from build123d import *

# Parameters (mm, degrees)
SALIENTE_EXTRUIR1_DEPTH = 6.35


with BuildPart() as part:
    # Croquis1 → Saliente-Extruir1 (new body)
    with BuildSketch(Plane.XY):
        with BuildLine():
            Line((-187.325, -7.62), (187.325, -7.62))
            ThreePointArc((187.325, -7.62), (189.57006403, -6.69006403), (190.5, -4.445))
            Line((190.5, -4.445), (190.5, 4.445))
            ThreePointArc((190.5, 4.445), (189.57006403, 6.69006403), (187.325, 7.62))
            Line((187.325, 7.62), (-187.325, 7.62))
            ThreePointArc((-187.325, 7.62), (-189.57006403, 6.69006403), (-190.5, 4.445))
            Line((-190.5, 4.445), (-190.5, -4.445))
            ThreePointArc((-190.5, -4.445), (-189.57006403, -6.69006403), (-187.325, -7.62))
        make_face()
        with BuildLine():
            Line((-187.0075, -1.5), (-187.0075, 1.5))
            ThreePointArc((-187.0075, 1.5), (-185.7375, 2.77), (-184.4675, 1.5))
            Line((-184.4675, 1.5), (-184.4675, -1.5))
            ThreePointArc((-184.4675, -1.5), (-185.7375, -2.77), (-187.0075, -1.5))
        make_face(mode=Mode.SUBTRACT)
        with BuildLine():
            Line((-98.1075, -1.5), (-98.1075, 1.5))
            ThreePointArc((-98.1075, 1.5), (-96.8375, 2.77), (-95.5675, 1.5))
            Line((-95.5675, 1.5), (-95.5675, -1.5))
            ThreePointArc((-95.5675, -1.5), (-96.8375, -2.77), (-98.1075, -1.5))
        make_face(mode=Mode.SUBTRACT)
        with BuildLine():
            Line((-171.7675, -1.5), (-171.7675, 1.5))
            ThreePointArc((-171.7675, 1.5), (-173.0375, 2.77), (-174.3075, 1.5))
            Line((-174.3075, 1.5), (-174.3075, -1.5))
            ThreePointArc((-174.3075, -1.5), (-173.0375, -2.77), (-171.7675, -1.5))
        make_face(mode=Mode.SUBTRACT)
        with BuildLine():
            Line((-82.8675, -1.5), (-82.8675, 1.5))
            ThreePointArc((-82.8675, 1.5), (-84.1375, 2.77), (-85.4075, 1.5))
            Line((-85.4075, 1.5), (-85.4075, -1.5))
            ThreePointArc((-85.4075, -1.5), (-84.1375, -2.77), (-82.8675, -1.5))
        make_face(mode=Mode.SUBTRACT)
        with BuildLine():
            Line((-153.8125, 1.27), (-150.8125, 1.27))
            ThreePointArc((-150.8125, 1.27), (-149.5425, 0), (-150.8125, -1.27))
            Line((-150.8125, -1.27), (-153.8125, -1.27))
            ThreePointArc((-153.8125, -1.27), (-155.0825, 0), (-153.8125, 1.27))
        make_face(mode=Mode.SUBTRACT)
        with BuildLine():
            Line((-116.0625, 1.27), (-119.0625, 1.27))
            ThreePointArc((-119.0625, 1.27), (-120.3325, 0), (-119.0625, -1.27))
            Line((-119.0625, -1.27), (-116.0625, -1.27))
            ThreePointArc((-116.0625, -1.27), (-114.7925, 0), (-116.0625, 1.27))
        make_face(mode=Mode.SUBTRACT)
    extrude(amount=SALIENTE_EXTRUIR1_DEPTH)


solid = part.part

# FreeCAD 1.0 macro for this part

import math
import FreeCAD as App
import Part
import Sketcher
from FreeCAD import Vector
Q = App.Units.Quantity

doc = App.newDocument("Part")
body = doc.addObject("PartDesign::Body", "Body")

# Sketch on XY plane
sketch1 = body.newObject("Sketcher::SketchObject", "Sketch")
sketch1.AttachmentSupport = (doc.getObject("XY_Plane"), [""])
sketch1.MapMode = "FlatFace"
sketch1.addGeometry([
    Part.LineSegment(Vector(-187.3, -7.6, 0), Vector(187.3, -7.6, 0)),  # 0
    Part.ArcOfCircle(Part.Circle(Vector(187.3, -4.4, 0), Vector(0, 0, 1), 3.2), math.radians(-90), math.radians(0)),  # 1
    Part.LineSegment(Vector(190.5, -4.4, 0), Vector(190.5, 4.4, 0)),  # 2
    Part.ArcOfCircle(Part.Circle(Vector(187.3, 4.4, 0), Vector(0, 0, 1), 3.2), math.radians(0), math.radians(90)),  # 3
    Part.LineSegment(Vector(187.3, 7.6, 0), Vector(-187.3, 7.6, 0)),  # 4
    Part.ArcOfCircle(Part.Circle(Vector(-187.3, 4.4, 0), Vector(0, 0, 1), 3.2), math.radians(90), math.radians(180)),  # 5
    Part.LineSegment(Vector(-190.5, 4.4, 0), Vector(-190.5, -4.4, 0)),  # 6
    Part.ArcOfCircle(Part.Circle(Vector(-187.3, -4.4, 0), Vector(0, 0, 1), 3.2), math.radians(-180), math.radians(-90)),  # 7
    Part.ArcOfCircle(Part.Circle(Vector(-185.7, -1.5, 0), Vector(0, 0, 1), 1.3), math.radians(180), math.radians(360)),  # 8
    Part.LineSegment(Vector(-187, -1.5, 0), Vector(-187, 1.5, 0)),  # 9
    Part.ArcOfCircle(Part.Circle(Vector(-185.7, 1.5, 0), Vector(0, 0, 1), 1.3), math.radians(0), math.radians(180)),  # 10
    Part.LineSegment(Vector(-184.5, 1.5, 0), Vector(-184.5, -1.5, 0)),  # 11
    Part.LineSegment(Vector(-171.8, 1.5, 0), Vector(-171.8, -1.5, 0)),  # 12
    Part.ArcOfCircle(Part.Circle(Vector(-173, -1.5, 0), Vector(0, 0, 1), 1.3), math.radians(180), math.radians(360)),  # 13
    Part.LineSegment(Vector(-174.3, -1.5, 0), Vector(-174.3, 1.5, 0)),  # 14
    Part.ArcOfCircle(Part.Circle(Vector(-173, 1.5, 0), Vector(0, 0, 1), 1.3), math.radians(0), math.radians(180)),  # 15
    Part.ArcOfCircle(Part.Circle(Vector(-153.8, 0, 0), Vector(0, 0, 1), 1.3), math.radians(90), math.radians(270)),  # 16
    Part.LineSegment(Vector(-153.8, 1.3, 0), Vector(-150.8, 1.3, 0)),  # 17
    Part.ArcOfCircle(Part.Circle(Vector(-150.8, 0, 0), Vector(0, 0, 1), 1.3), math.radians(-90), math.radians(90)),  # 18
    Part.LineSegment(Vector(-150.8, -1.3, 0), Vector(-153.8, -1.3, 0)),  # 19
    Part.LineSegment(Vector(-119.1, 1.3, 0), Vector(-116.1, 1.3, 0)),  # 20
    Part.ArcOfCircle(Part.Circle(Vector(-116.1, 0, 0), Vector(0, 0, 1), 1.3), math.radians(-90), math.radians(90)),  # 21
    Part.LineSegment(Vector(-116.1, -1.3, 0), Vector(-119.1, -1.3, 0)),  # 22
    Part.ArcOfCircle(Part.Circle(Vector(-119.1, 0, 0), Vector(0, 0, 1), 1.3), math.radians(90), math.radians(270)),  # 23
    Part.ArcOfCircle(Part.Circle(Vector(-96.8, -1.5, 0), Vector(0, 0, 1), 1.3), math.radians(180), math.radians(360)),  # 24
    Part.LineSegment(Vector(-98.1, -1.5, 0), Vector(-98.1, 1.5, 0)),  # 25
    Part.ArcOfCircle(Part.Circle(Vector(-96.8, 1.5, 0), Vector(0, 0, 1), 1.3), math.radians(0), math.radians(180)),  # 26
    Part.LineSegment(Vector(-95.6, 1.5, 0), Vector(-95.6, -1.5, 0)),  # 27
    Part.LineSegment(Vector(-82.9, 1.5, 0), Vector(-82.9, -1.5, 0)),  # 28
    Part.ArcOfCircle(Part.Circle(Vector(-84.1, -1.5, 0), Vector(0, 0, 1), 1.3), math.radians(180), math.radians(360)),  # 29
    Part.LineSegment(Vector(-85.4, -1.5, 0), Vector(-85.4, 1.5, 0)),  # 30
    Part.ArcOfCircle(Part.Circle(Vector(-84.1, 1.5, 0), Vector(0, 0, 1), 1.3), math.radians(0), math.radians(180)),  # 31
], False)
sketch1.addConstraint([
    Sketcher.Constraint("Tangent", 0, 2, 1, 1),
    Sketcher.Constraint("Tangent", 1, 2, 2, 1),
    Sketcher.Constraint("Tangent", 2, 2, 3, 1),
    Sketcher.Constraint("Tangent", 3, 2, 4, 1),
    Sketcher.Constraint("Tangent", 4, 2, 5, 1),
    Sketcher.Constraint("Tangent", 5, 2, 6, 1),
    Sketcher.Constraint("Tangent", 6, 2, 7, 1),
    Sketcher.Constraint("Tangent", 7, 2, 0, 1),
    Sketcher.Constraint("Tangent", 8, 1, 9, 1),
    Sketcher.Constraint("Tangent", 9, 2, 10, 2),
    Sketcher.Constraint("Tangent", 10, 1, 11, 1),
    Sketcher.Constraint("Tangent", 11, 2, 8, 2),
    Sketcher.Constraint("Tangent", 12, 2, 13, 2),
    Sketcher.Constraint("Tangent", 13, 1, 14, 1),
    Sketcher.Constraint("Tangent", 14, 2, 15, 2),
    Sketcher.Constraint("Tangent", 15, 1, 12, 1),
    Sketcher.Constraint("Tangent", 16, 1, 17, 1),
    Sketcher.Constraint("Tangent", 17, 2, 18, 2),
    Sketcher.Constraint("Tangent", 18, 1, 19, 1),
    Sketcher.Constraint("Tangent", 19, 2, 16, 2),
    Sketcher.Constraint("Tangent", 20, 2, 21, 2),
    Sketcher.Constraint("Tangent", 21, 1, 22, 1),
    Sketcher.Constraint("Tangent", 22, 2, 23, 2),
    Sketcher.Constraint("Tangent", 23, 1, 20, 1),
    Sketcher.Constraint("Tangent", 24, 1, 25, 1),
    Sketcher.Constraint("Tangent", 25, 2, 26, 2),
    Sketcher.Constraint("Tangent", 26, 1, 27, 1),
    Sketcher.Constraint("Tangent", 27, 2, 24, 2),
    Sketcher.Constraint("Tangent", 28, 2, 29, 2),
    Sketcher.Constraint("Tangent", 29, 1, 30, 1),
    Sketcher.Constraint("Tangent", 30, 2, 31, 2),
    Sketcher.Constraint("Tangent", 31, 1, 28, 1),
    Sketcher.Constraint("Horizontal", 0),
    Sketcher.Constraint("Vertical", 2),
    Sketcher.Constraint("Horizontal", 4),
    Sketcher.Constraint("Vertical", 6),
    Sketcher.Constraint("Vertical", 9),
    Sketcher.Constraint("Vertical", 11),
    Sketcher.Constraint("Vertical", 12),
    Sketcher.Constraint("Vertical", 14),
    Sketcher.Constraint("Horizontal", 17),
    Sketcher.Constraint("Horizontal", 19),
    Sketcher.Constraint("Horizontal", 20),
    Sketcher.Constraint("Horizontal", 22),
    Sketcher.Constraint("Vertical", 25),
    Sketcher.Constraint("Vertical", 27),
    Sketcher.Constraint("Vertical", 28),
    Sketcher.Constraint("Vertical", 30),
    Sketcher.Constraint("Equal", 1, 3),
    Sketcher.Constraint("Equal", 3, 5),
    Sketcher.Constraint("Equal", 5, 7),
    Sketcher.Constraint("Equal", 10, 13),
    Sketcher.Constraint("Equal", 15, 16),
    Sketcher.Constraint("Equal", 18, 21),
    Sketcher.Constraint("Equal", 23, 24),
    Sketcher.Constraint("Equal", 26, 29),
    Sketcher.Constraint("Symmetric", 1, 3, 5, 3, -1, 1),
    Sketcher.Constraint("PointOnObject", 16, 3, -1),
    Sketcher.Constraint("PointOnObject", 21, 3, -1),
    Sketcher.Constraint("Horizontal", 8, 3, 13, 3),
    Sketcher.Constraint("Horizontal", 10, 3, 15, 3),
    Sketcher.Constraint("Horizontal", 13, 3, 24, 3),
    Sketcher.Constraint("Horizontal", 15, 3, 26, 3),
    Sketcher.Constraint("Horizontal", 24, 3, 29, 3),
    Sketcher.Constraint("Horizontal", 26, 3, 31, 3),
    Sketcher.Constraint("Equal", 19, 20),
    Sketcher.Constraint("Equal", 22, 9),
    Sketcher.Constraint("Radius", 8, Q("0.05 in")),
    Sketcher.Constraint("Radius", 1, Q("0.125 in")),
    Sketcher.Constraint("DistanceX", 13, 3, 24, 3, Q("3 in")),
    Sketcher.Constraint("DistanceX", 0, 1, 0, 2, Q("14.75 in")),
    Sketcher.Constraint("DistanceY", 2, 1, 2, 2, Q("0.35 in")),
    Sketcher.Constraint("DistanceX", 8, 3, 13, 3, Q("0.5 in")),
    Sketcher.Constraint("DistanceX", 24, 3, 29, 3, Q("0.5 in")),
    Sketcher.Constraint("DistanceX", 18, 3, 23, 3, Q("1.25 in")),
    Sketcher.Constraint("DistanceX", 8, 3, -1, 1, Q("7.3125 in")),
    Sketcher.Constraint("DistanceX", 18, 3, -1, 1, Q("5.9375 in")),
    Sketcher.Constraint("DistanceX", 17, 1, 17, 2, Q("3 mm")),
    Sketcher.Constraint("DistanceY", 8, 3, -1, 1, Q("1.5 mm")),
])
pad1 = body.newObject("PartDesign::Pad", "Pad")
pad1.Profile = sketch1
pad1.Length = Q("0.25 in")

doc.recompute()
